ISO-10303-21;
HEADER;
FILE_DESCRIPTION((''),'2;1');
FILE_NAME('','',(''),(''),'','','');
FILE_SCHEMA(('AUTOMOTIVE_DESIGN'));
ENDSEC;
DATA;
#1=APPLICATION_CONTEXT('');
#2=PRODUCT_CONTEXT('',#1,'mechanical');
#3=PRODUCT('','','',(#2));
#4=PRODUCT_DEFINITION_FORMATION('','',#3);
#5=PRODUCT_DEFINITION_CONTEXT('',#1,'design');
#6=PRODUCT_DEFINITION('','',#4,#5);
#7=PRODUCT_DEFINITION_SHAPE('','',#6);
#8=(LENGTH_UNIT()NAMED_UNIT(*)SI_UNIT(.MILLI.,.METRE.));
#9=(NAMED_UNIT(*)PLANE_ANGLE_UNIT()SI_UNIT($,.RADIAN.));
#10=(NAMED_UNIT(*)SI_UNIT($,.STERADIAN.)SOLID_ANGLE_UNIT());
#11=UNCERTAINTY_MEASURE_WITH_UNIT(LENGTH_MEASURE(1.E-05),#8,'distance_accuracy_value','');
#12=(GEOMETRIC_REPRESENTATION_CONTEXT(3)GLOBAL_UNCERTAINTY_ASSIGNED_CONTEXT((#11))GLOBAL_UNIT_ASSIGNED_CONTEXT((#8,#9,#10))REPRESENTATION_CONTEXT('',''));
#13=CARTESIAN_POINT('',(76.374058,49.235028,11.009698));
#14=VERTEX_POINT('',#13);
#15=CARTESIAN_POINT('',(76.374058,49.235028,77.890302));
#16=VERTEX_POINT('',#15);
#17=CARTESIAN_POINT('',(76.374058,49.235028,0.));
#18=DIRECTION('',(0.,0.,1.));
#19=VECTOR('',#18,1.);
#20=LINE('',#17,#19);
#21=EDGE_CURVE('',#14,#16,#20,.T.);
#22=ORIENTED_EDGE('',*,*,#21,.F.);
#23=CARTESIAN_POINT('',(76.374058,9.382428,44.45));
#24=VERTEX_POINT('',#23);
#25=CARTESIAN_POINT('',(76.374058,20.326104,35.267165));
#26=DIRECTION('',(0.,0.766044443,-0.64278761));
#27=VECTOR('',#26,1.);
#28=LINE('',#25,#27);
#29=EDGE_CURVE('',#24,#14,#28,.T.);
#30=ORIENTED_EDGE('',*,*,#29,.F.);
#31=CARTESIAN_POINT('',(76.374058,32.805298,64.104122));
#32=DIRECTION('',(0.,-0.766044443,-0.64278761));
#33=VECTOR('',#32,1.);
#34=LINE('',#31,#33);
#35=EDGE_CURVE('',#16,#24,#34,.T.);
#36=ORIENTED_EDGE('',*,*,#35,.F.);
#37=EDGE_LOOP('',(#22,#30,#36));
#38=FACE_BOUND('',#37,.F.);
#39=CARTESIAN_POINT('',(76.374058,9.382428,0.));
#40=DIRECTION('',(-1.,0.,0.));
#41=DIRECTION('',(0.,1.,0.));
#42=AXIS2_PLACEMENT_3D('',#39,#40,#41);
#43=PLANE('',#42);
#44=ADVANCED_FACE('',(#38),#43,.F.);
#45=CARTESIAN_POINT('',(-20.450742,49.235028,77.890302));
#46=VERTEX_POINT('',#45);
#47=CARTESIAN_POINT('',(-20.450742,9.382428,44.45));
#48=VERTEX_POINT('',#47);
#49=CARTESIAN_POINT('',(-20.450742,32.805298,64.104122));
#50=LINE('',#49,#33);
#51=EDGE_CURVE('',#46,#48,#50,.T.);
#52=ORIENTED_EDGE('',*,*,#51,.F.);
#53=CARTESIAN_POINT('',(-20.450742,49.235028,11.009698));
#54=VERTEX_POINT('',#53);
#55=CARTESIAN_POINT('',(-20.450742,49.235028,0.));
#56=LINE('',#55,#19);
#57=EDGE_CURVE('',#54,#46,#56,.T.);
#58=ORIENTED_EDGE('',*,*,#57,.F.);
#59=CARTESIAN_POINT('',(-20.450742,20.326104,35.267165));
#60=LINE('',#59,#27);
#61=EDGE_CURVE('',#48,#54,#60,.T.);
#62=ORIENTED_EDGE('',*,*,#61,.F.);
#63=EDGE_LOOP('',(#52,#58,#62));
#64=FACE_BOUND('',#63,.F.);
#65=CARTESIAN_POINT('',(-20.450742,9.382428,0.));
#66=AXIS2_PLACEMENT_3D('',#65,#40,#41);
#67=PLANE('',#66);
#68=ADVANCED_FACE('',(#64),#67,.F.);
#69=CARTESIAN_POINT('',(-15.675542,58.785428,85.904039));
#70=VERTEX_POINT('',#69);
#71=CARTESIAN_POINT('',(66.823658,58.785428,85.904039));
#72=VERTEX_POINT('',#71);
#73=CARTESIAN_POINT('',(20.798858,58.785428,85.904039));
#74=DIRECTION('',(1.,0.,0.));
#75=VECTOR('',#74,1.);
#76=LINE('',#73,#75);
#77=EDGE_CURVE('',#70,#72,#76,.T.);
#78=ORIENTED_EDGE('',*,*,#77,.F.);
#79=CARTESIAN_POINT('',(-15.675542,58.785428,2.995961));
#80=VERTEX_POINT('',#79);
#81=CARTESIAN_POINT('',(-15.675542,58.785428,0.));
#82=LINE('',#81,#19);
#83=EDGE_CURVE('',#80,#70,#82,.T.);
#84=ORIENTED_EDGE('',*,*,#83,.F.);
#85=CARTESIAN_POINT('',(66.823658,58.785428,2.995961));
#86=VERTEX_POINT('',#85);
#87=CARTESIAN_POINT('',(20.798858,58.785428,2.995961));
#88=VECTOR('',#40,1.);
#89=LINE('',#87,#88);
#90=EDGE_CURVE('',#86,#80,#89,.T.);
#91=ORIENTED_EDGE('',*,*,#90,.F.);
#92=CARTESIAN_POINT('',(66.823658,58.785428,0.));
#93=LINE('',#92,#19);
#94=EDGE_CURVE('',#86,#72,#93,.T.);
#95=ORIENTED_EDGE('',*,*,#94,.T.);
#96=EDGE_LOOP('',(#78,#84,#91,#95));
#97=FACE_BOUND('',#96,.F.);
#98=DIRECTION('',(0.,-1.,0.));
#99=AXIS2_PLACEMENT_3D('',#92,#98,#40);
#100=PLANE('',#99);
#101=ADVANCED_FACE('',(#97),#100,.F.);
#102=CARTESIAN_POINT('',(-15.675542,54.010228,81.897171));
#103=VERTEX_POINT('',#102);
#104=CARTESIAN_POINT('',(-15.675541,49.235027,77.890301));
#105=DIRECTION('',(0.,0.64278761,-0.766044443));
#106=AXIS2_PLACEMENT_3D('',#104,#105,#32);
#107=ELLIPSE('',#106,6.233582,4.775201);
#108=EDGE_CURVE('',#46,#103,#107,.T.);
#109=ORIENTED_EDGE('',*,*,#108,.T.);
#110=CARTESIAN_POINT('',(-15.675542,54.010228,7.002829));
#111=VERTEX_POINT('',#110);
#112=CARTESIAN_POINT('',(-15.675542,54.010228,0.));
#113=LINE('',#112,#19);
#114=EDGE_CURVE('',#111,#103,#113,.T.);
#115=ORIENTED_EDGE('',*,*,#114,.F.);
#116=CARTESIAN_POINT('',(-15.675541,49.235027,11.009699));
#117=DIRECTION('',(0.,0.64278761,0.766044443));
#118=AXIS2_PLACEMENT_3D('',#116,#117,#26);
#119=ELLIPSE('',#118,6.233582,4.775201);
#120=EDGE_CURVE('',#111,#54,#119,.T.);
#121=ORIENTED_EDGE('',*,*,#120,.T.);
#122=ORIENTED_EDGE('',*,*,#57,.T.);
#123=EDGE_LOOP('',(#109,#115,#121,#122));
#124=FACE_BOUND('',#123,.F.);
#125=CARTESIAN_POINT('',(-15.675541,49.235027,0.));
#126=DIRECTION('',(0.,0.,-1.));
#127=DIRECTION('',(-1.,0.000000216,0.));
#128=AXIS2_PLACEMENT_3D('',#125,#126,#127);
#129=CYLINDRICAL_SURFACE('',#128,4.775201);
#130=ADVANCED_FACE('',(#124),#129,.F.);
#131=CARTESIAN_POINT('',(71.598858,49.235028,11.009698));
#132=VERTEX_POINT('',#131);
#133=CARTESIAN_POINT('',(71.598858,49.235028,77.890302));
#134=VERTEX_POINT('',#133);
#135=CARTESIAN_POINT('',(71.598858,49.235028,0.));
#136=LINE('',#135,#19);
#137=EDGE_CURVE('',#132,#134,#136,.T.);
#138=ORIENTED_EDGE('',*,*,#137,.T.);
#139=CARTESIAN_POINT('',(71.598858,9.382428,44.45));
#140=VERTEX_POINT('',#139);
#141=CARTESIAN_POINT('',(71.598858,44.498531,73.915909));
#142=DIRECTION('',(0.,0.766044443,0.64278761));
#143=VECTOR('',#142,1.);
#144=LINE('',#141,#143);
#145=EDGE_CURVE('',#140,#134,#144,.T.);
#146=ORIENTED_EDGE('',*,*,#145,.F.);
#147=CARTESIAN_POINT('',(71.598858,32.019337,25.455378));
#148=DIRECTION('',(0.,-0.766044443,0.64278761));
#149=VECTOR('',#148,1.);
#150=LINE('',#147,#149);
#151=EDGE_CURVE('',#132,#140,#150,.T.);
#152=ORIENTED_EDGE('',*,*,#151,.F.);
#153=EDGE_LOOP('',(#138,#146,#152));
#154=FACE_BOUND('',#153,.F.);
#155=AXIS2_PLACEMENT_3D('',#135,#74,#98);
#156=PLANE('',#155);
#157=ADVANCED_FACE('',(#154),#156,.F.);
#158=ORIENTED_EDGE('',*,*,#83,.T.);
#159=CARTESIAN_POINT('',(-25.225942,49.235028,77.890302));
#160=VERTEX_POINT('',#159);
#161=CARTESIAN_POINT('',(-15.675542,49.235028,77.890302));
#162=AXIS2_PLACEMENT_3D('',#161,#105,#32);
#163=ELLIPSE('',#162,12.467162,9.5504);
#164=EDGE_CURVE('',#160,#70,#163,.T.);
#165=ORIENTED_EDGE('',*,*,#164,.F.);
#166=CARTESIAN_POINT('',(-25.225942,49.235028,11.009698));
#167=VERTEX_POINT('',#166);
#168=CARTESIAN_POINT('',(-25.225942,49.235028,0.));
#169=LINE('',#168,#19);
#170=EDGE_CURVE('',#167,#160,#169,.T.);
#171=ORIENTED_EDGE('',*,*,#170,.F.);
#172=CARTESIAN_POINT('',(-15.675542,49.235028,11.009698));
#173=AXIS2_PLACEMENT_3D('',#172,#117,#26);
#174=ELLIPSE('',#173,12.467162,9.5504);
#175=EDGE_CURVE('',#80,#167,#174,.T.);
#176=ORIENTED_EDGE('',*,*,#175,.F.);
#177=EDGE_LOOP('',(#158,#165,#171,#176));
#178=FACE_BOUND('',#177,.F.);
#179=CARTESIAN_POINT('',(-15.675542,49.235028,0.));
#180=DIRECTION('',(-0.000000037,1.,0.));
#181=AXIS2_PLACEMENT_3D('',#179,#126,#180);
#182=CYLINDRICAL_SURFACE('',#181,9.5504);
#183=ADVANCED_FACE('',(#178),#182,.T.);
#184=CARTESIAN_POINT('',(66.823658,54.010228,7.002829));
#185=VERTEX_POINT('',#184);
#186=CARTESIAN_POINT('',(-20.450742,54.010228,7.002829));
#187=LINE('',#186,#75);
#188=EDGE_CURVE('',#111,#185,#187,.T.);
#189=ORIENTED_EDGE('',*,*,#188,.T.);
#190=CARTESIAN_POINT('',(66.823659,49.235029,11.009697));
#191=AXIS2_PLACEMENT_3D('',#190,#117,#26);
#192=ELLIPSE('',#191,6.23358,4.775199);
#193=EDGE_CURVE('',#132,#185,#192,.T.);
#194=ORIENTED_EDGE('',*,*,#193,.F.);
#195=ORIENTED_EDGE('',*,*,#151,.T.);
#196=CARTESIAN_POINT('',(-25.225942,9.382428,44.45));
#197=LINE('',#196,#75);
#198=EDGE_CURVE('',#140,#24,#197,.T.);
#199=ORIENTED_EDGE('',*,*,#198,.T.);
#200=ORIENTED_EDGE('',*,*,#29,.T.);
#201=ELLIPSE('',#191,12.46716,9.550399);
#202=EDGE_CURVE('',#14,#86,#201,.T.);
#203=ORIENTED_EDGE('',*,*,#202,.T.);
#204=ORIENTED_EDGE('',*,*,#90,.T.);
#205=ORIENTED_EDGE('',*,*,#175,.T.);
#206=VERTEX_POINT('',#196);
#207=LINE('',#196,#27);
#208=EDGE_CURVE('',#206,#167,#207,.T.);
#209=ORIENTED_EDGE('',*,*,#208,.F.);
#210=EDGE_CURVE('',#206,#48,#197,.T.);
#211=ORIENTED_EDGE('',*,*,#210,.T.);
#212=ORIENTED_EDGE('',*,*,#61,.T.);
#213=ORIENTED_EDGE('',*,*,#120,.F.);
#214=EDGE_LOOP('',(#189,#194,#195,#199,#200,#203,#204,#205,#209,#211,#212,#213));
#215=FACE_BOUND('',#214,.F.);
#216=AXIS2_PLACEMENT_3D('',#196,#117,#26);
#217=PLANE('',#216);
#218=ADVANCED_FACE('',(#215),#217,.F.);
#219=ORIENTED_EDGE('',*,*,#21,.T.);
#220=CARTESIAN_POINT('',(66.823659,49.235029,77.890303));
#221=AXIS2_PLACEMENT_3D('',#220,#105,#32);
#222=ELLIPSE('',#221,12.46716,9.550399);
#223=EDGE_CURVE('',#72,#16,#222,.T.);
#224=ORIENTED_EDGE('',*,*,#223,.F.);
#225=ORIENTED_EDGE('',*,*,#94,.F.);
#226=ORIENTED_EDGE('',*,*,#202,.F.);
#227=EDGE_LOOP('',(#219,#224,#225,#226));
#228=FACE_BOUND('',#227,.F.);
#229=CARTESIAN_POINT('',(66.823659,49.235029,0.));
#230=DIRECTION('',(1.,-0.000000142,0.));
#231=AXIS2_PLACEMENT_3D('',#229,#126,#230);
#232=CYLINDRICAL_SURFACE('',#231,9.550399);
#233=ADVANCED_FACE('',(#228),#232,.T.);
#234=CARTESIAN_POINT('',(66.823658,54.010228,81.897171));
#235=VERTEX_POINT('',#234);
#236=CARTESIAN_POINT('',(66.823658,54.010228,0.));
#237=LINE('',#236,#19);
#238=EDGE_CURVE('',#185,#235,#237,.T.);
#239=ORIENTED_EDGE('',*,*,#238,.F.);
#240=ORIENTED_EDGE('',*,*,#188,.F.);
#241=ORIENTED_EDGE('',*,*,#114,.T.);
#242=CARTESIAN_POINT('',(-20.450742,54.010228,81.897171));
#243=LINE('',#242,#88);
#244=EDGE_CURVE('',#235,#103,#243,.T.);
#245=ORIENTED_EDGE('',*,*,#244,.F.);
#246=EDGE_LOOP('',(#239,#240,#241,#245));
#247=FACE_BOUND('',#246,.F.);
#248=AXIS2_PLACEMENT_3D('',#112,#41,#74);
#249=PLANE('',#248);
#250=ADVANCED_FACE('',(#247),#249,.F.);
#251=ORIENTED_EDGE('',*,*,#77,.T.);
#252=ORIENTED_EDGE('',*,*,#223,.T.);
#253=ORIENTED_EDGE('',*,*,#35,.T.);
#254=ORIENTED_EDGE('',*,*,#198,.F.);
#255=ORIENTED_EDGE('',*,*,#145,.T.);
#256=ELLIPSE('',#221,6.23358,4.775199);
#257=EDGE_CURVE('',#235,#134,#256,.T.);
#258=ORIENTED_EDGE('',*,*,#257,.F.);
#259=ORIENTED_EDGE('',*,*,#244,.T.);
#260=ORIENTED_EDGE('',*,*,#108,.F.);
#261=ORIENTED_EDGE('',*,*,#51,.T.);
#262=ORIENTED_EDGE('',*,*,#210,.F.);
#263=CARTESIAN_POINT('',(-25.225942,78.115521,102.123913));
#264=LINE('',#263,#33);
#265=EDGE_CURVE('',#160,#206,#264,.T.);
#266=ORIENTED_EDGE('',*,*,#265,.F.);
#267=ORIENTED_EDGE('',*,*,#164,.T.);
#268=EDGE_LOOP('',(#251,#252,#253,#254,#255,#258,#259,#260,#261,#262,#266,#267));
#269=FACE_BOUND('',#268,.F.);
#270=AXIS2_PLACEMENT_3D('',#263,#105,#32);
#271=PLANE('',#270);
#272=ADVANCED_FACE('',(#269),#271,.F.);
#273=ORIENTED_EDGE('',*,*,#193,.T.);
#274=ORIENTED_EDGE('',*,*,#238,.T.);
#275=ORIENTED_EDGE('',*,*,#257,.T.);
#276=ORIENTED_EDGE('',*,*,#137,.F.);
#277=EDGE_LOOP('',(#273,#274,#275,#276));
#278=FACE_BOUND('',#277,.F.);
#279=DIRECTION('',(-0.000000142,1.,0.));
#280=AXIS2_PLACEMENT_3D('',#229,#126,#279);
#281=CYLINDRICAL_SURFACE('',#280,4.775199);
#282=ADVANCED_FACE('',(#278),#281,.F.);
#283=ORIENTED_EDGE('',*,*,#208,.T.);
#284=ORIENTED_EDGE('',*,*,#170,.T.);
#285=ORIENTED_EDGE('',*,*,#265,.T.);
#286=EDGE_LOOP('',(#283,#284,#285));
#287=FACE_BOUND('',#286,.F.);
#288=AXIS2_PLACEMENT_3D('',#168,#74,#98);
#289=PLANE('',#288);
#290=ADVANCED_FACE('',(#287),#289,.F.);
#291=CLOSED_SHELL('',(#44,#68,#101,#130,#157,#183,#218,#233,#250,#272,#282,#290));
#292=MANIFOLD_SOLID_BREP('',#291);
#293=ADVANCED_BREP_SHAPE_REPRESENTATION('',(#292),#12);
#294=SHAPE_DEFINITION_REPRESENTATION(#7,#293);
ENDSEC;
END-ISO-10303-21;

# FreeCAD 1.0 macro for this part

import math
import FreeCAD as App
import Part
import Sketcher
Q = App.Units.Quantity

doc = App.newDocument("Part")
body = doc.addObject("PartDesign::Body", "Body")

# Sketch on XY plane
sketch1 = body.newObject("Sketcher::SketchObject", "Sketch")
sketch1.AttachmentSupport = (doc.getObject("XY_Plane"), [""])
sketch1.MapMode = "FlatFace"
sketch1.addGeometry(Part.LineSegment(App.Vector(-25.2, 49.2, 0), App.Vector(-25.2, 9.4, 0)), False)
sketch1.addGeometry(Part.LineSegment(App.Vector(-25.2, 9.4, 0), App.Vector(-20.5, 9.4, 0)), False)
sketch1.addGeometry(Part.LineSegment(App.Vector(-20.5, 9.4, 0), App.Vector(-20.5, 49.2, 0)), False)
sketch1.addGeometry(Part.ArcOfCircle(Part.Circle(App.Vector(-15.7, 49.2, 0), App.Vector(0, 0, 1), 4.8), math.radians(90), math.radians(180)), False)
sketch1.addGeometry(Part.LineSegment(App.Vector(-15.7, 54, 0), App.Vector(66.8, 54, 0)), False)
sketch1.addGeometry(Part.ArcOfCircle(Part.Circle(App.Vector(66.8, 49.2, 0), App.Vector(0, 0, 1), 4.8), math.radians(0), math.radians(90)), False)
sketch1.addGeometry(Part.LineSegment(App.Vector(71.6, 49.2, 0), App.Vector(71.6, 9.4, 0)), False)
sketch1.addGeometry(Part.LineSegment(App.Vector(71.6, 9.4, 0), App.Vector(76.4, 9.4, 0)), False)
sketch1.addGeometry(Part.LineSegment(App.Vector(76.4, 9.4, 0), App.Vector(76.4, 49.2, 0)), False)
sketch1.addGeometry(Part.ArcOfCircle(Part.Circle(App.Vector(66.8, 49.2, 0), App.Vector(0, 0, 1), 9.6), math.radians(0), math.radians(90)), False)
sketch1.addGeometry(Part.LineSegment(App.Vector(66.8, 58.8, 0), App.Vector(-15.7, 58.8, 0)), False)
sketch1.addGeometry(Part.ArcOfCircle(Part.Circle(App.Vector(-15.7, 49.2, 0), App.Vector(0, 0, 1), 9.6), math.radians(90), math.radians(180)), False)
sketch1.addConstraint(Sketcher.Constraint("Coincident", 0, 2, 1, 1))
sketch1.addConstraint(Sketcher.Constraint("Coincident", 1, 2, 2, 1))
sketch1.addConstraint(Sketcher.Constraint("Tangent", 2, 2, 3, 2))
sketch1.addConstraint(Sketcher.Constraint("Tangent", 3, 1, 4, 1))
sketch1.addConstraint(Sketcher.Constraint("Tangent", 4, 2, 5, 2))
sketch1.addConstraint(Sketcher.Constraint("Tangent", 5, 1, 6, 1))
sketch1.addConstraint(Sketcher.Constraint("Coincident", 6, 2, 7, 1))
sketch1.addConstraint(Sketcher.Constraint("Coincident", 7, 2, 8, 1))
sketch1.addConstraint(Sketcher.Constraint("Tangent", 8, 2, 9, 1))
sketch1.addConstraint(Sketcher.Constraint("Tangent", 9, 2, 10, 1))
sketch1.addConstraint(Sketcher.Constraint("Tangent", 10, 2, 11, 1))
sketch1.addConstraint(Sketcher.Constraint("Tangent", 11, 2, 0, 1))
sketch1.addConstraint(Sketcher.Constraint("Vertical", 0))
sketch1.addConstraint(Sketcher.Constraint("Horizontal", 1))
sketch1.addConstraint(Sketcher.Constraint("Vertical", 2))
sketch1.addConstraint(Sketcher.Constraint("Horizontal", 4))
sketch1.addConstraint(Sketcher.Constraint("Vertical", 6))
sketch1.addConstraint(Sketcher.Constraint("Horizontal", 7))
sketch1.addConstraint(Sketcher.Constraint("Vertical", 8))
sketch1.addConstraint(Sketcher.Constraint("Horizontal", 10))
sketch1.addConstraint(Sketcher.Constraint("Coincident", 9, 3, 5, 3))
sketch1.addConstraint(Sketcher.Constraint("Coincident", 11, 3, 3, 3))
sketch1.addConstraint(Sketcher.Constraint("Equal", 3, 5))
sketch1.addConstraint(Sketcher.Constraint("Horizontal", 1, 2, 6, 2))
sketch1.addConstraint(Sketcher.Constraint("Radius", 3, Q("0.188 in")))
sketch1.addConstraint(Sketcher.Constraint("Radius", 9, Q("0.3759999 in")))
sketch1.addConstraint(Sketcher.Constraint("DistanceX", 4, 1, 4, 2, Q("3.248 in")))
sketch1.addConstraint(Sketcher.Constraint("DistanceY", 0, 2, 0, 1, Q("1.569 in")))
sketch1.addConstraint(Sketcher.Constraint("DistanceX", 3, 3, -1, 1, Q("15.675541 mm")))
sketch1.addConstraint(Sketcher.Constraint("DistanceY", -1, 1, 5, 3, Q("49.235029 mm")))
pad1 = body.newObject("PartDesign::Pad", "Pad")
pad1.Profile = sketch1
pad1.Length = Q("3.5 in")

# Sketch on YZ plane
sketch2 = body.newObject("Sketcher::SketchObject", "Sketch001")
sketch2.AttachmentSupport = (doc.getObject("YZ_Plane"), [""])
sketch2.MapMode = "FlatFace"
sketch2.AttachmentOffset = App.Placement(App.Vector(0, 0, -25.225942), App.Rotation())
sketch2.addGeometry(Part.LineSegment(App.Vector(78, 102, 0), App.Vector(9, 44, 0)), False)
sketch2.addGeometry(Part.LineSegment(App.Vector(9, 44, 0), App.Vector(78, -13, 0)), False)
sketch2.addGeometry(Part.LineSegment(App.Vector(78, -13, 0), App.Vector(-2, -13, 0)), False)
sketch2.addGeometry(Part.LineSegment(App.Vector(-2, -13, 0), App.Vector(-2, 102, 0)), False)
sketch2.addGeometry(Part.LineSegment(App.Vector(-2, 102, 0), App.Vector(78, 102, 0)), False)
sketch2.addConstraint(Sketcher.Constraint("Coincident", 0, 2, 1, 1))
sketch2.addConstraint(Sketcher.Constraint("Coincident", 1, 2, 2, 1))
sketch2.addConstraint(Sketcher.Constraint("Coincident", 2, 2, 3, 1))
sketch2.addConstraint(Sketcher.Constraint("Coincident", 3, 2, 4, 1))
sketch2.addConstraint(Sketcher.Constraint("Coincident", 4, 2, 0, 1))
sketch2.addConstraint(Sketcher.Constraint("Horizontal", 2))
sketch2.addConstraint(Sketcher.Constraint("Vertical", 3))
sketch2.addConstraint(Sketcher.Constraint("Horizontal", 4))
sketch2.addConstraint(Sketcher.Constraint("Vertical", 1, 2, 4, 2))
sketch2.addConstraint(Sketcher.Constraint("Equal", 0, 1))
sketch2.addConstraint(Sketcher.Constraint("Angle", 0, Q("-140 deg")))
sketch2.addConstraint(Sketcher.Constraint("DistanceY", -1, 1, 0, 2, Q("1.75 in")))
sketch2.addConstraint(Sketcher.Constraint("Distance", 0, Q("89.724681 mm")))
sketch2.addConstraint(Sketcher.Constraint("DistanceX", 2, 2, 2, 1, Q("80.106975 mm")))
sketch2.addConstraint(Sketcher.Constraint("DistanceX", -1, 1, 0, 2, Q("9.382428 mm")))
pocket1 = body.newObject("PartDesign::Pocket", "Pocket")
pocket1.Profile = sketch2
pocket1.Length = Q("5 in")
pocket1.Reversed = True

doc.recompute()
